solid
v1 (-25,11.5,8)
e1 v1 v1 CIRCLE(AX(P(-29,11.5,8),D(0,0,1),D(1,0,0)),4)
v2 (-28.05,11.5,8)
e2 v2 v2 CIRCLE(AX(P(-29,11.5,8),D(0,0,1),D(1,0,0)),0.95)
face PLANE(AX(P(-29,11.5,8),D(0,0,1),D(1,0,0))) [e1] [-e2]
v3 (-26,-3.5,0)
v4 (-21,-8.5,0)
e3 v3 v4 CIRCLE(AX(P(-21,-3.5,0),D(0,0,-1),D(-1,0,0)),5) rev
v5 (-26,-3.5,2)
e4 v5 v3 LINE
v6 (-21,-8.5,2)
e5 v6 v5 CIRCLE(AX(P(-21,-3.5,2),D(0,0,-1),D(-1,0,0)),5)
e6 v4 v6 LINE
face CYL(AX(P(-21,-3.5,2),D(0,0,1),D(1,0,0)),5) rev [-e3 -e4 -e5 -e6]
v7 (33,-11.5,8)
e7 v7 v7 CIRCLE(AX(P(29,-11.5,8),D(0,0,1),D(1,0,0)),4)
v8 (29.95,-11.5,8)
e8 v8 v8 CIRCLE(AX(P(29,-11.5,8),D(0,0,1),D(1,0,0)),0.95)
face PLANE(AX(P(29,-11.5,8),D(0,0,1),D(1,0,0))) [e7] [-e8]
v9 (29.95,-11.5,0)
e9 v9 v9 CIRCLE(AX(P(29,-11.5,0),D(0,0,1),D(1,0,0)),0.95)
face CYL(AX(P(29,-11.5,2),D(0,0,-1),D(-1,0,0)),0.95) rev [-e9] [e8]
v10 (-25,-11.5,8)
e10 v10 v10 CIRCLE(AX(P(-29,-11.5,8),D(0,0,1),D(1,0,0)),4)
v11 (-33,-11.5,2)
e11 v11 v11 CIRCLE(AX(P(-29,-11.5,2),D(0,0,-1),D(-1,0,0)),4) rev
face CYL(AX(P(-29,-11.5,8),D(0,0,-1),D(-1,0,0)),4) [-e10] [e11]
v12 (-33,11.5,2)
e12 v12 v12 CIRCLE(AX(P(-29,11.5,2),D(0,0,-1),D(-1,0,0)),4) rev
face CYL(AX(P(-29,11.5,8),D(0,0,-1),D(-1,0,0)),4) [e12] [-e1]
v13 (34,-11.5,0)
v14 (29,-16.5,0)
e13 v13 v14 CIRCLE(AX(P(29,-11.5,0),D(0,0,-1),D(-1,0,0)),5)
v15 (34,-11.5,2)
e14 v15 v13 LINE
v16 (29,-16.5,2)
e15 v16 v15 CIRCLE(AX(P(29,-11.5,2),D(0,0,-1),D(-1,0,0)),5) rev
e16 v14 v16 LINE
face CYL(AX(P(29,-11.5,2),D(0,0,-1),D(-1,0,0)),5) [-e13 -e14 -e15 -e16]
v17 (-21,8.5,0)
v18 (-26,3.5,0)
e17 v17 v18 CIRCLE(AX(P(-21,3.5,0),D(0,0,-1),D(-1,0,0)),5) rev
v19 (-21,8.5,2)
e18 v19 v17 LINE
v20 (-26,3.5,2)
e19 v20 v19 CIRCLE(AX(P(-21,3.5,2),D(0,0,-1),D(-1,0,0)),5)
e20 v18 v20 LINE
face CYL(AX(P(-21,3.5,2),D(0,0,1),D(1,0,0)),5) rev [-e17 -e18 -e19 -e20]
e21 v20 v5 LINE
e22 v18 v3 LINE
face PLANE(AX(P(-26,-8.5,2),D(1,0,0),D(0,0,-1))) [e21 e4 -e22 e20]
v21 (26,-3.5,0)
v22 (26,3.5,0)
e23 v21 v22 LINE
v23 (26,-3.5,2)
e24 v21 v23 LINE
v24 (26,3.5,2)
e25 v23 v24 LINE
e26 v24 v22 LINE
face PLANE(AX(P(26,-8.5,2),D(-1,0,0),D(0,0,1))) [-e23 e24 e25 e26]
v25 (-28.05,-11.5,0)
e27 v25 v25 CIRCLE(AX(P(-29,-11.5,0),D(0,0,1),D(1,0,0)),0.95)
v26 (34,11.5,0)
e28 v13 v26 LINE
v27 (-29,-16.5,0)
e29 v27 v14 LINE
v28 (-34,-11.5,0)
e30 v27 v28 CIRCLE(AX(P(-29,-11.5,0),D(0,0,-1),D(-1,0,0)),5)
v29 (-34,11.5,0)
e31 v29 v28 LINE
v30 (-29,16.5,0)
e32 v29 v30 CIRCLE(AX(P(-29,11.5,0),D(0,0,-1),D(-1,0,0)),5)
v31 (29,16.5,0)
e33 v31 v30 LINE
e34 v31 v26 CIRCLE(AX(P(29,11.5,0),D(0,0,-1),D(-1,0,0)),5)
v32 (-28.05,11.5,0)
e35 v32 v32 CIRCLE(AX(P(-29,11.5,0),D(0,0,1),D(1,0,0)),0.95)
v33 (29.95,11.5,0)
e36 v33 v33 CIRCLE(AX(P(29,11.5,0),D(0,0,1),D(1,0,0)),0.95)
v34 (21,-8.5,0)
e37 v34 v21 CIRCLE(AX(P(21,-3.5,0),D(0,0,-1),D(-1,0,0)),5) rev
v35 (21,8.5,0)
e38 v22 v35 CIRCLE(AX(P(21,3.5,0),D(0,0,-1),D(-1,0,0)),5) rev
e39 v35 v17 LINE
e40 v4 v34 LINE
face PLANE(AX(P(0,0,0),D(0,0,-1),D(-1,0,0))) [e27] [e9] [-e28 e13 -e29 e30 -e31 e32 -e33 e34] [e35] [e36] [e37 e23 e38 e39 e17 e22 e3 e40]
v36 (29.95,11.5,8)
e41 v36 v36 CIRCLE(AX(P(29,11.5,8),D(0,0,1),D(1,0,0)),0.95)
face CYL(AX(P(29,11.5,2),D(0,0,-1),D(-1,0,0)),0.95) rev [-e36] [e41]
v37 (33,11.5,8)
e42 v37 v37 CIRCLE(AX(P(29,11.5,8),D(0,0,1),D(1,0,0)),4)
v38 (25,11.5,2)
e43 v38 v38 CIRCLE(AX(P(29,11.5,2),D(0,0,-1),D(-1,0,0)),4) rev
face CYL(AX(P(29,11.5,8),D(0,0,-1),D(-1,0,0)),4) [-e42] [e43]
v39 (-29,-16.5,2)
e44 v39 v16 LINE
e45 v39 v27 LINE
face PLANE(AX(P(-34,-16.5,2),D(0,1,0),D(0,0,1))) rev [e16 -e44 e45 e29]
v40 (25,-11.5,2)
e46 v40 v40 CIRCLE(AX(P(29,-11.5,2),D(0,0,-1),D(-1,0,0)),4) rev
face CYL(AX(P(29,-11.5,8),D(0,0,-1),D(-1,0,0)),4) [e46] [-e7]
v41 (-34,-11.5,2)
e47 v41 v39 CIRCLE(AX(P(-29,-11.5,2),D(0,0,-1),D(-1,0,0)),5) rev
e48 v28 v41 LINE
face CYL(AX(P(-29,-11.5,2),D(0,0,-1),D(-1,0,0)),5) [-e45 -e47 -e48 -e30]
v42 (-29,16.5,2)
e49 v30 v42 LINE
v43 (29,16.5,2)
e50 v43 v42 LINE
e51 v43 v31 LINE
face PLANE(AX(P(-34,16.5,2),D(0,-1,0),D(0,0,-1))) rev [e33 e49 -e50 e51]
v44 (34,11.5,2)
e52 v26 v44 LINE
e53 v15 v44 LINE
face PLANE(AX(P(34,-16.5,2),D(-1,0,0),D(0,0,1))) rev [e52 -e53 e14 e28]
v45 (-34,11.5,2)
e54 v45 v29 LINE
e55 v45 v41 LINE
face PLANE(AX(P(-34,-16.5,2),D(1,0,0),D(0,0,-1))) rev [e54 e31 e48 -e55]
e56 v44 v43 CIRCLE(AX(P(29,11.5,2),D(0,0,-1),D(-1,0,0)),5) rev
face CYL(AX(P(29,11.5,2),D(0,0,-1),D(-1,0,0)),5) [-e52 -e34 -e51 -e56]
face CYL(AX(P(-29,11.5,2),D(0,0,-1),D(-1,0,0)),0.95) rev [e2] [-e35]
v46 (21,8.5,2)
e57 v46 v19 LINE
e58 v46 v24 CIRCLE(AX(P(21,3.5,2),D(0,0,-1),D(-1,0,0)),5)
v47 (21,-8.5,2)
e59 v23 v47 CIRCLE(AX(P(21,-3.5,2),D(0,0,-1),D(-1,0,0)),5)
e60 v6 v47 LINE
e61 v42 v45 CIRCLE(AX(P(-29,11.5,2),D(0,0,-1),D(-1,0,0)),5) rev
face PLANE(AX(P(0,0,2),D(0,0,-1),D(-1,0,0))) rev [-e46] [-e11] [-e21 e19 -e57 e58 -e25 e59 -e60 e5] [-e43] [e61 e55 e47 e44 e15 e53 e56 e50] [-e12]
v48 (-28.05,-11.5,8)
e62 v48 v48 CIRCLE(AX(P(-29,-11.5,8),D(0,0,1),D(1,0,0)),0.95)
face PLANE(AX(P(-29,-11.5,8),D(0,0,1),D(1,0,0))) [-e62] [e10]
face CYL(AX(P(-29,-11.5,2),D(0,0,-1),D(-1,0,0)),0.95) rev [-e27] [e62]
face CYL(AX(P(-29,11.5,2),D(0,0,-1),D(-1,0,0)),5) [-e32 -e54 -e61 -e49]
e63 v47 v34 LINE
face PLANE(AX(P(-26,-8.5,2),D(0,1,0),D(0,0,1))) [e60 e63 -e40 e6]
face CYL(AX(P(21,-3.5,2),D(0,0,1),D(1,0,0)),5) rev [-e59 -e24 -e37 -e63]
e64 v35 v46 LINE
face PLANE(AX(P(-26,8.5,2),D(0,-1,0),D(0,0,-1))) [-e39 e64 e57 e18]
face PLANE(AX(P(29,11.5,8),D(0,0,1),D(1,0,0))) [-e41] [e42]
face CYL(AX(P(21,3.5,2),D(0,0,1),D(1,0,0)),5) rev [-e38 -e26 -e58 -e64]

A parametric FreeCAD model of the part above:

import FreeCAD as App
import Part
import Sketcher
from FreeCAD import Vector
Q = App.Units.Quantity


def edges_at(feature, points):
    """Names of the edges that pass closest to the given points."""
    edges = feature.Shape.Edges
    near = lambda p: min(range(len(edges)), key=lambda i: edges[i].distToShape(Part.Vertex(*p))[0])
    return sorted({f"Edge{near(p) + 1}" for p in points})


def add_polygon(sketch, points):
    """Adds a closed chain of lines whose ends are joined by coincident constraints."""
    first, n = sketch.GeometryCount, len(points)
    for a, b in zip(points, points[1:] + points[:1]):
        sketch.addGeometry(Part.LineSegment(App.Vector(*a, 0), App.Vector(*b, 0)), False)
    for i in range(n):
        sketch.addConstraint(Sketcher.Constraint("Coincident", first + i, 2, first + (i + 1) % n, 1))

doc = App.newDocument("Part")
body = doc.addObject("PartDesign::Body", "Body")

# Sketch on XY plane
sketch1 = body.newObject("Sketcher::SketchObject", "Sketch")
sketch1.AttachmentSupport = (doc.getObject("XY_Plane"), [""])
sketch1.MapMode = "FlatFace"
add_polygon(sketch1, [(-34, 16.5), (-34, -16.5), (34, -16.5), (34, 16.5)])  # lines 0-3
sketch1.addGeometry(Part.Circle(Vector(-29, -11.5, 0), Vector(0, 0, 1), 0.95), False)  # 4
add_polygon(sketch1, [(26, -8.5), (-26, -8.5), (-26, 8.5), (26, 8.5)])  # lines 5-8
sketch1.addGeometry(Part.Circle(Vector(29, -11.5, 0), Vector(0, 0, 1), 0.95), False)  # 9
sketch1.addGeometry(Part.Circle(Vector(-29, 11.5, 0), Vector(0, 0, 1), 0.95), False)  # 10
sketch1.addGeometry(Part.Circle(Vector(29, 11.5, 0), Vector(0, 0, 1), 0.95), False)  # 11
sketch1.addConstraint([
    Sketcher.Constraint("Vertical", 0),
    Sketcher.Constraint("Horizontal", 1),
    Sketcher.Constraint("Vertical", 2),
    Sketcher.Constraint("Horizontal", 3),
    Sketcher.Constraint("Horizontal", 5),
    Sketcher.Constraint("Vertical", 6),
    Sketcher.Constraint("Horizontal", 7),
    Sketcher.Constraint("Vertical", 8),
    Sketcher.Constraint("Equal", 4, 9),
    Sketcher.Constraint("Equal", 9, 10),
    Sketcher.Constraint("Equal", 10, 11),
    Sketcher.Constraint("Symmetric", 9, 3, 10, 3, -1, 1),
    Sketcher.Constraint("Symmetric", 4, 3, 11, 3, -1, 1),
    Sketcher.Constraint("Symmetric", 0, 2, 2, 2, -1, 1),
    Sketcher.Constraint("Symmetric", 5, 2, 7, 2, -1, 1),
    Sketcher.Constraint("Symmetric", 4, 3, 9, 3, -2),
    Sketcher.Constraint("Diameter", 4, Q("1.9 mm")),
    Sketcher.Constraint("DistanceX", 1, 1, 1, 2, Q("68 mm")),
    Sketcher.Constraint("DistanceX", 5, 2, 5, 1, Q("52 mm")),
    Sketcher.Constraint("DistanceY", 0, 2, 0, 1, Q("33 mm")),
    Sketcher.Constraint("DistanceY", 6, 1, 6, 2, Q("17 mm")),
    Sketcher.Constraint("DistanceX", 4, 3, -1, 1, Q("29 mm")),
    Sketcher.Constraint("DistanceY", 4, 3, 10, 3, Q("23 mm")),
])
pad1 = body.newObject("PartDesign::Pad", "Pad")
pad1.Profile = sketch1
pad1.Length = 2

# Sketch on XY plane
sketch2 = body.newObject("Sketcher::SketchObject", "Sketch001")
sketch2.AttachmentSupport = (doc.getObject("XY_Plane"), [""])
sketch2.MapMode = "FlatFace"
sketch2.AttachmentOffset = App.Placement(Vector(0, 0, 2), App.Rotation())
sketch2.addGeometry([
    Part.Circle(Vector(-29, 11.5, 0), Vector(0, 0, 1), 4),  # 0
    Part.Circle(Vector(-29, 11.5, 0), Vector(0, 0, 1), 0.95),  # 1
    Part.Circle(Vector(29, 11.5, 0), Vector(0, 0, 1), 4),  # 2
    Part.Circle(Vector(29, 11.5, 0), Vector(0, 0, 1), 0.95),  # 3
    Part.Circle(Vector(29, -11.5, 0), Vector(0, 0, 1), 4),  # 4
    Part.Circle(Vector(29, -11.5, 0), Vector(0, 0, 1), 0.95),  # 5
    Part.Circle(Vector(-29, -11.5, 0), Vector(0, 0, 1), 4),  # 6
    Part.Circle(Vector(-29, -11.5, 0), Vector(0, 0, 1), 0.95),  # 7
], False)
sketch2.addConstraint([
    Sketcher.Constraint("Coincident", 1, 3, 0, 3),
    Sketcher.Constraint("Coincident", 3, 3, 2, 3),
    Sketcher.Constraint("Coincident", 5, 3, 4, 3),
    Sketcher.Constraint("Coincident", 7, 3, 6, 3),
    Sketcher.Constraint("Equal", 0, 2),
    Sketcher.Constraint("Equal", 1, 3),
    Sketcher.Constraint("Equal", 2, 4),
    Sketcher.Constraint("Equal", 3, 5),
    Sketcher.Constraint("Equal", 4, 6),
    Sketcher.Constraint("Equal", 5, 7),
    Sketcher.Constraint("Symmetric", 0, 3, 4, 3, -1, 1),
    Sketcher.Constraint("Symmetric", 2, 3, 6, 3, -1, 1),
    Sketcher.Constraint("Symmetric", 0, 3, 2, 3, -2),
    Sketcher.Constraint("Diameter", 0, Q("8 mm")),
    Sketcher.Constraint("Diameter", 1, Q("1.9 mm")),
    Sketcher.Constraint("DistanceX", 0, 3, -1, 1, Q("29 mm")),
    Sketcher.Constraint("DistanceY", 4, 3, 2, 3, Q("23 mm")),
])
pad2 = body.newObject("PartDesign::Pad", "Pad001")
pad2.Profile = sketch2
pad2.Length = 6
doc.recompute()

fillet = body.newObject("PartDesign::Fillet", "Fillet")
fillet.Base = (pad2, edges_at(pad2, [
    (26, -8.5, 1),
    (26, 8.5, 1),
    (-26, 8.5, 1),
    (-26, -8.5, 1),
    (34, -16.5, 1),
    (-34, -16.5, 1),
    (-34, 16.5, 1),
    (34, 16.5, 1),
]))
fillet.Radius = 5

doc.recompute()
